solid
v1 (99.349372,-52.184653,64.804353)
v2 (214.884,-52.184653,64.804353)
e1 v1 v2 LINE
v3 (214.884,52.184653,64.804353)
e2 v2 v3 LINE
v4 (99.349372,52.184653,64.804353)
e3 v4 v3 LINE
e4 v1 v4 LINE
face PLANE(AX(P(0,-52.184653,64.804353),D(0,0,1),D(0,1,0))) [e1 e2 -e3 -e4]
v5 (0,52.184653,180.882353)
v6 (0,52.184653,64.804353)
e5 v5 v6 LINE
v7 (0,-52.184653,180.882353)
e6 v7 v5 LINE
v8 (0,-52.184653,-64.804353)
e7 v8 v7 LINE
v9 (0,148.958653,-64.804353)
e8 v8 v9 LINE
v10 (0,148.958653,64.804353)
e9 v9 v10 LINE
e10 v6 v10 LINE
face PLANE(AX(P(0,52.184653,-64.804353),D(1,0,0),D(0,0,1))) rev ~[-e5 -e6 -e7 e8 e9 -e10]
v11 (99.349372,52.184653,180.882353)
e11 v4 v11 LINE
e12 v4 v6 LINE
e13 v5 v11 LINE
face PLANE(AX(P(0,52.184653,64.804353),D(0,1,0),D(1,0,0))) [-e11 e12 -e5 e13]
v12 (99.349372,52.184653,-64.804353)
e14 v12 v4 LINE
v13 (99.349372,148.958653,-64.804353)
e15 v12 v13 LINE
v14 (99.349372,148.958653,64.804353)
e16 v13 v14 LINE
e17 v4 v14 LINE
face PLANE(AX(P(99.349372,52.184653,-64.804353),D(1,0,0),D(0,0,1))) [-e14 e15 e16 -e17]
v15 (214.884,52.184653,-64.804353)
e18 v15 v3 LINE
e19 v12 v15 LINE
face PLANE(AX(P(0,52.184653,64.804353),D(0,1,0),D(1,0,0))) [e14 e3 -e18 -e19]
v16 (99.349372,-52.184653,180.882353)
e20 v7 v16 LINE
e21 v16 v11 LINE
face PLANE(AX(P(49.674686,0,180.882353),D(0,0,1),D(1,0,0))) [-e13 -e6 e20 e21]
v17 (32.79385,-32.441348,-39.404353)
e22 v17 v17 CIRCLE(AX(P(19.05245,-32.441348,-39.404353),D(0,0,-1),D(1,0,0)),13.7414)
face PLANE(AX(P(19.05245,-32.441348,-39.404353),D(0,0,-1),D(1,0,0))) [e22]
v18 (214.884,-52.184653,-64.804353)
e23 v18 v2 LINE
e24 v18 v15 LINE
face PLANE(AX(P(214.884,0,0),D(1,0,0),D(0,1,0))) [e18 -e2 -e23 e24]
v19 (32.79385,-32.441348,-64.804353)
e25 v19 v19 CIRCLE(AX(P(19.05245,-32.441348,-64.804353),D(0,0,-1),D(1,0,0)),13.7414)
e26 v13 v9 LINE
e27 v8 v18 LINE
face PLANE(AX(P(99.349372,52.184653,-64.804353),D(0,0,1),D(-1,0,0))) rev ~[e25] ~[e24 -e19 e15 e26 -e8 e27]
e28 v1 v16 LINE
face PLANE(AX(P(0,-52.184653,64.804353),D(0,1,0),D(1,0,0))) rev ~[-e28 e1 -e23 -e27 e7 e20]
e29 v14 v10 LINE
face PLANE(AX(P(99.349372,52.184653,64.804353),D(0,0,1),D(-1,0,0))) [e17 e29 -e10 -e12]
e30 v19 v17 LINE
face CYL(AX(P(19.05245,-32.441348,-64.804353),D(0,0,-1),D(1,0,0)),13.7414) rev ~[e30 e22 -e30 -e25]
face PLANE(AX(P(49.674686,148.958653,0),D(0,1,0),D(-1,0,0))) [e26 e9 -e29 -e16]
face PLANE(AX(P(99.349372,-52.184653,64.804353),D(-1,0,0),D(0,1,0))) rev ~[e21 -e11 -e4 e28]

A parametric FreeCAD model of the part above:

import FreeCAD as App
import Part
import Sketcher
from FreeCAD import Vector
Q = App.Units.Quantity


def add_polygon(sketch, points):
    """Adds a closed chain of lines whose ends are joined by coincident constraints."""
    first, n = sketch.GeometryCount, len(points)
    for a, b in zip(points, points[1:] + points[:1]):
        sketch.addGeometry(Part.LineSegment(App.Vector(*a, 0), App.Vector(*b, 0)), False)
    for i in range(n):
        sketch.addConstraint(Sketcher.Constraint("Coincident", first + i, 2, first + (i + 1) % n, 1))

doc = App.newDocument("Part")
body = doc.addObject("PartDesign::Body", "Body")

# Sketch on YZ plane
sketch1 = body.newObject("Sketcher::SketchObject", "Sketch")
sketch1.AttachmentSupport = (doc.getObject("YZ_Plane"), [""])
sketch1.MapMode = "FlatFace"
add_polygon(sketch1, [(-52, 65), (-52, -65), (52, -65), (52, 65)])  # lines 0-3
sketch1.addConstraint([
    Sketcher.Constraint("Vertical", 0),
    Sketcher.Constraint("Horizontal", 1),
    Sketcher.Constraint("Vertical", 2),
    Sketcher.Constraint("Horizontal", 3),
    Sketcher.Constraint("Symmetric", 0, 2, 2, 2, -1, 1),
    Sketcher.Constraint("DistanceX", 1, 1, 1, 2, Q("104.369306 mm")),
    Sketcher.Constraint("DistanceY", 0, 2, 0, 1, Q("129.608706 mm")),
])
pad1 = body.newObject("PartDesign::Pad", "Pad")
pad1.Profile = sketch1
pad1.Length = Q("8.46 in")

# Sketch on XY plane
sketch2 = body.newObject("Sketcher::SketchObject", "Sketch001")
sketch2.AttachmentSupport = (doc.getObject("XY_Plane"), [""])
sketch2.MapMode = "FlatFace"
sketch2.AttachmentOffset = App.Placement(Vector(0, 0, 64.804353), App.Rotation())
add_polygon(sketch2, [(0, 52), (0, -52), (99, -52), (99, 52)])  # lines 0-3
sketch2.addConstraint([
    Sketcher.Constraint("Vertical", 0),
    Sketcher.Constraint("Horizontal", 1),
    Sketcher.Constraint("Vertical", 2),
    Sketcher.Constraint("Horizontal", 3),
    Sketcher.Constraint("Symmetric", 0, 2, 3, 2, -1, 1),
    Sketcher.Constraint("DistanceX", 1, 1, 1, 2, Q("99.349372 mm")),
    Sketcher.Constraint("DistanceY", 0, 2, 0, 1, Q("104.369306 mm")),
])
pad2 = body.newObject("PartDesign::Pad", "Pad001")
pad2.Profile = sketch2
pad2.Length = Q("4.57 in")

# Sketch on XZ plane
sketch3 = body.newObject("Sketcher::SketchObject", "Sketch002")
sketch3.AttachmentSupport = (doc.getObject("XZ_Plane"), [""])
sketch3.MapMode = "FlatFace"
sketch3.AttachmentOffset = App.Placement(Vector(0, 0, -52.184653), App.Rotation())
add_polygon(sketch3, [(99, 65), (99, -65), (0, -65), (0, 65)])  # lines 0-3
sketch3.addConstraint([
    Sketcher.Constraint("Vertical", 0),
    Sketcher.Constraint("Horizontal", 1),
    Sketcher.Constraint("Vertical", 2),
    Sketcher.Constraint("Horizontal", 3),
    Sketcher.Constraint("Symmetric", 1, 2, 2, 2, -1, 1),
    Sketcher.Constraint("DistanceX", 1, 2, 1, 1, Q("99.349372 mm")),
    Sketcher.Constraint("DistanceY", 0, 2, 0, 1, Q("129.608706 mm")),
])
pad3 = body.newObject("PartDesign::Pad", "Pad002")
pad3.Profile = sketch3
pad3.Length = Q("3.81 in")
pad3.Reversed = True

# Sketch on XY plane
sketch4 = body.newObject("Sketcher::SketchObject", "Sketch003")
sketch4.AttachmentSupport = (doc.getObject("XY_Plane"), [""])
sketch4.MapMode = "FlatFace"
sketch4.AttachmentOffset = App.Placement(Vector(0, 0, -64.804353), App.Rotation())
sketch4.addGeometry(Part.Circle(Vector(19, -32, 0), Vector(0, 0, 1), 14), False)
sketch4.addConstraint([
    Sketcher.Constraint("Diameter", 0, Q("1.082 in")),
    Sketcher.Constraint("DistanceX", -1, 1, 0, 3, Q("19.05245 mm")),
    Sketcher.Constraint("DistanceY", 0, 3, -1, 1, Q("32.441348 mm")),
])
pocket1 = body.newObject("PartDesign::Pocket", "Pocket")
pocket1.Profile = sketch4
pocket1.Length = Q("1 in")
pocket1.Reversed = True

doc.recompute()
